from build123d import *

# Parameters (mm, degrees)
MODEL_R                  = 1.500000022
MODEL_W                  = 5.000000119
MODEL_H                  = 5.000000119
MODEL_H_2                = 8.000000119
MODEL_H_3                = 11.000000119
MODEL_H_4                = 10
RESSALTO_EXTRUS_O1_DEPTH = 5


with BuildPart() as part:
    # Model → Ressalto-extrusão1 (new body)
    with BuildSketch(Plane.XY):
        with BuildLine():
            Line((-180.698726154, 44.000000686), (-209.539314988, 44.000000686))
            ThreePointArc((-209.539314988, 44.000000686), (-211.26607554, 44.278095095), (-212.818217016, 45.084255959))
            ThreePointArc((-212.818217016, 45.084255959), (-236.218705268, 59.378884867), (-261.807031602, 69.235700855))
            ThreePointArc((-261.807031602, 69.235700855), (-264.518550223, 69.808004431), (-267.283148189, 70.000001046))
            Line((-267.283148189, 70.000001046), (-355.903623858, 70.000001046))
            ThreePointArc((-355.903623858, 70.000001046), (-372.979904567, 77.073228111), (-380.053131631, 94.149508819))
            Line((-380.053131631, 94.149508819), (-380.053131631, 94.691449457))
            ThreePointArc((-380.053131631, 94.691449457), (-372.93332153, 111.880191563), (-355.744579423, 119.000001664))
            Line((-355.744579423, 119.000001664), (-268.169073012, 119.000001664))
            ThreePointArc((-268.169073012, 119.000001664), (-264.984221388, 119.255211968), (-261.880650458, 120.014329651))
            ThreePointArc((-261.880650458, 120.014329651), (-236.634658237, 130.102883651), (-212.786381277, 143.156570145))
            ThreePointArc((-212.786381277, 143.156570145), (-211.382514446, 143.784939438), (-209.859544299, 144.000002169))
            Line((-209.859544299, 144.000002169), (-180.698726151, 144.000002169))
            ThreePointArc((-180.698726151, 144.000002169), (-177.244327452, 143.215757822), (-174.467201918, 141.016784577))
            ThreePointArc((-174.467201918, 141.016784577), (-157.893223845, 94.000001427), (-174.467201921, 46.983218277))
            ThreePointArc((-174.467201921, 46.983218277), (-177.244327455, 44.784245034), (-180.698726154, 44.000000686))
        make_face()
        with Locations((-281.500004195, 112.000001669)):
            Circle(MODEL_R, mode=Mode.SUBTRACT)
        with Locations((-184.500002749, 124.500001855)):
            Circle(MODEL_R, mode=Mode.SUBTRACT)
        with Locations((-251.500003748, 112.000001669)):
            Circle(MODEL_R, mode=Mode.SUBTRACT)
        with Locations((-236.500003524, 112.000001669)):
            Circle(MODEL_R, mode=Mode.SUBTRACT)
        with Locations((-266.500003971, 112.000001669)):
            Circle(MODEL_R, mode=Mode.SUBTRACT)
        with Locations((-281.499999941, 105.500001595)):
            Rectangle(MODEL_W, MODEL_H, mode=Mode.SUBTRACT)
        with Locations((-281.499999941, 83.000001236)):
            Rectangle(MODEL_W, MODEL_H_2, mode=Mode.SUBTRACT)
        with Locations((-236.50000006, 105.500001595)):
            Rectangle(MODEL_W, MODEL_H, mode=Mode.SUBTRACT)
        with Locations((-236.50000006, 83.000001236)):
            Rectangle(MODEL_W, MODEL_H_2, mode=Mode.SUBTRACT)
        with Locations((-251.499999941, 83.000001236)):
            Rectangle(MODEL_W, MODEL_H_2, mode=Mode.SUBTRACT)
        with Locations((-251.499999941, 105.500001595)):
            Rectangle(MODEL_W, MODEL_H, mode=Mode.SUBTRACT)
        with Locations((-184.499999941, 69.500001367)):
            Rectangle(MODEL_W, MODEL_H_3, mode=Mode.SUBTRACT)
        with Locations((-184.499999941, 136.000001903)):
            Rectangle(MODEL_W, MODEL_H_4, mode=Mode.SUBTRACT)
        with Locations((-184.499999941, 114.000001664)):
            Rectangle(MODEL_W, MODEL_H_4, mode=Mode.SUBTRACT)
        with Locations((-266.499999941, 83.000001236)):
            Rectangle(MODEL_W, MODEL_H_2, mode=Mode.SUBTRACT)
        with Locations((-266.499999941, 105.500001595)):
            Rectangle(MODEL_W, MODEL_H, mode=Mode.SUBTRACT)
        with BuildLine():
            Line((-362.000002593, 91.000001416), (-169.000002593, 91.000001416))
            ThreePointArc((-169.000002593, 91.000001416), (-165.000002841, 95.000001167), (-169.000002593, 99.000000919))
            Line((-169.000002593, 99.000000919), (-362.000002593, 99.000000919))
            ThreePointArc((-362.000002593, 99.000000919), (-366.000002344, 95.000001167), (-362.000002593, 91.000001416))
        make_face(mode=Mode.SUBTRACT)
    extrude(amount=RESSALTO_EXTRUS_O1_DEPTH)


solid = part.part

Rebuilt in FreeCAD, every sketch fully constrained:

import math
import FreeCAD as App
import Part
import Sketcher


def add_polygon(sketch, points):
    """Adds a closed chain of lines whose ends are joined by coincident constraints."""
    first, n = sketch.GeometryCount, len(points)
    for a, b in zip(points, points[1:] + points[:1]):
        sketch.addGeometry(Part.LineSegment(App.Vector(*a, 0), App.Vector(*b, 0)), False)
    for i in range(n):
        sketch.addConstraint(Sketcher.Constraint("Coincident", first + i, 2, first + (i + 1) % n, 1))

doc = App.newDocument("Part")
body = doc.addObject("PartDesign::Body", "Body")

sketch1 = body.newObject("Sketcher::SketchObject", "Sketch")
sketch1.AttachmentSupport = (doc.getObject("XY_Plane"), [""])
sketch1.MapMode = "FlatFace"
sketch1.addGeometry(Part.LineSegment(App.Vector(-209.5, 44, 0), App.Vector(-180.7, 44, 0)), False)
sketch1.addGeometry(Part.ArcOfCircle(Part.Circle(App.Vector(-180.7, 52, 0), App.Vector(0, 0, 1), 8), math.radians(-90), math.radians(-39)), False)
sketch1.addGeometry(Part.ArcOfCircle(Part.Circle(App.Vector(-232.9, 94, 0), App.Vector(0, 0, 1), 75), math.radians(-39), math.radians(39)), False)
sketch1.addGeometry(Part.ArcOfCircle(Part.Circle(App.Vector(-180.7, 136, 0), App.Vector(0, 0, 1), 8), math.radians(39), math.radians(90)), False)
sketch1.addGeometry(Part.LineSegment(App.Vector(-180.7, 144, 0), App.Vector(-209.9, 144, 0)), False)
sketch1.addGeometry(Part.ArcOfCircle(Part.Circle(App.Vector(-209.9, 138.5, 0), App.Vector(0, 0, 1), 5.5), math.radians(90), math.radians(122)), False)
sketch1.addGeometry(Part.ArcOfCircle(Part.Circle(App.Vector(-332.8, 334.1, 0), App.Vector(0, 0, 1), 225.5), math.radians(-71.67), math.radians(-57.85)), False)
sketch1.addGeometry(Part.ArcOfCircle(Part.Circle(App.Vector(-268.2, 139, 0), App.Vector(0, 0, 1), 20), math.radians(-90), math.radians(-71.67)), False)
sketch1.addGeometry(Part.LineSegment(App.Vector(-268.2, 119, 0), App.Vector(-355.7, 119, 0)), False)
sketch1.addGeometry(Part.ArcOfCircle(Part.Circle(App.Vector(-355.7, 94.7, 0), App.Vector(0, 0, 1), 24.3), math.radians(90), math.radians(180)), False)
sketch1.addGeometry(Part.LineSegment(App.Vector(-380.1, 94.7, 0), App.Vector(-380.1, 94.1, 0)), False)
sketch1.addGeometry(Part.ArcOfCircle(Part.Circle(App.Vector(-355.9, 94.1, 0), App.Vector(0, 0, 1), 24.1), math.radians(180), math.radians(270)), False)
sketch1.addGeometry(Part.LineSegment(App.Vector(-355.9, 70, 0), App.Vector(-267.3, 70, 0)), False)
sketch1.addGeometry(Part.ArcOfCircle(Part.Circle(App.Vector(-267.3, 50, 0), App.Vector(0, 0, 1), 20), math.radians(74.11), math.radians(90)), False)
sketch1.addGeometry(Part.ArcOfCircle(Part.Circle(App.Vector(-303.4, -76.9, 0), App.Vector(0, 0, 1), 152), math.radians(53), math.radians(74)), False)
sketch1.addGeometry(Part.ArcOfCircle(Part.Circle(App.Vector(-209.5, 49.5, 0), App.Vector(0, 0, 1), 5.5), math.radians(-127), math.radians(-90)), False)
add_polygon(sketch1, [(-187, 64), (-187, 75), (-182, 75), (-182, 64)])
add_polygon(sketch1, [(-239, 79), (-239, 87), (-234, 87), (-234, 79)])
add_polygon(sketch1, [(-254, 79), (-254, 87), (-249, 87), (-249, 79)])
add_polygon(sketch1, [(-269, 79), (-269, 87), (-264, 87), (-264, 79)])
add_polygon(sketch1, [(-284, 79), (-284, 87), (-279, 87), (-279, 79)])
sketch1.addGeometry(Part.ArcOfCircle(Part.Circle(App.Vector(-362, 95, 0), App.Vector(0, 0, 1), 4), math.radians(90), math.radians(270)), False)
sketch1.addGeometry(Part.LineSegment(App.Vector(-362, 99, 0), App.Vector(-169, 99, 0)), False)
sketch1.addGeometry(Part.ArcOfCircle(Part.Circle(App.Vector(-169, 95, 0), App.Vector(0, 0, 1), 4), math.radians(-90), math.radians(90)), False)
sketch1.addGeometry(Part.LineSegment(App.Vector(-169, 91, 0), App.Vector(-362, 91, 0)), False)
add_polygon(sketch1, [(-187, 109), (-187, 119), (-182, 119), (-182, 109)])
add_polygon(sketch1, [(-239, 103), (-239, 108), (-234, 108), (-234, 103)])
sketch1.addGeometry(Part.Circle(App.Vector(-236.5, 112, 0), App.Vector(0, 0, 1), 1.5), False)
add_polygon(sketch1, [(-254, 103), (-254, 108), (-249, 108), (-249, 103)])
sketch1.addGeometry(Part.Circle(App.Vector(-251.5, 112, 0), App.Vector(0, 0, 1), 1.5), False)
sketch1.addGeometry(Part.Circle(App.Vector(-184.5, 124.5, 0), App.Vector(0, 0, 1), 1.5), False)
add_polygon(sketch1, [(-187, 131), (-187, 141), (-182, 141), (-182, 131)])
add_polygon(sketch1, [(-269, 103), (-269, 108), (-264, 108), (-264, 103)])
add_polygon(sketch1, [(-284, 103), (-284, 108), (-279, 108), (-279, 103)])
sketch1.addGeometry(Part.Circle(App.Vector(-266.5, 112, 0), App.Vector(0, 0, 1), 1.5), False)
sketch1.addGeometry(Part.Circle(App.Vector(-281.5, 112, 0), App.Vector(0, 0, 1), 1.5), False)
sketch1.addConstraint(Sketcher.Constraint("Tangent", 0, 2, 1, 1))
sketch1.addConstraint(Sketcher.Constraint("Tangent", 1, 2, 2, 1))
sketch1.addConstraint(Sketcher.Constraint("Tangent", 2, 2, 3, 1))
sketch1.addConstraint(Sketcher.Constraint("Tangent", 3, 2, 4, 1))
sketch1.addConstraint(Sketcher.Constraint("Tangent", 4, 2, 5, 1))
sketch1.addConstraint(Sketcher.Constraint("Tangent", 5, 2, 6, 2))
sketch1.addConstraint(Sketcher.Constraint("Tangent", 6, 1, 7, 2))
sketch1.addConstraint(Sketcher.Constraint("Tangent", 7, 1, 8, 1))
sketch1.addConstraint(Sketcher.Constraint("Tangent", 8, 2, 9, 1))
sketch1.addConstraint(Sketcher.Constraint("Tangent", 9, 2, 10, 1))
sketch1.addConstraint(Sketcher.Constraint("Tangent", 10, 2, 11, 1))
sketch1.addConstraint(Sketcher.Constraint("Tangent", 11, 2, 12, 1))
sketch1.addConstraint(Sketcher.Constraint("Tangent", 12, 2, 13, 2))
sketch1.addConstraint(Sketcher.Constraint("Tangent", 13, 1, 14, 2))
sketch1.addConstraint(Sketcher.Constraint("Tangent", 14, 1, 15, 1))
sketch1.addConstraint(Sketcher.Constraint("Tangent", 15, 2, 0, 1))
sketch1.addConstraint(Sketcher.Constraint("Tangent", 36, 1, 37, 1))
sketch1.addConstraint(Sketcher.Constraint("Tangent", 37, 2, 38, 2))
sketch1.addConstraint(Sketcher.Constraint("Tangent", 38, 1, 39, 1))
sketch1.addConstraint(Sketcher.Constraint("Tangent", 39, 2, 36, 2))
sketch1.addConstraint(Sketcher.Constraint("Horizontal", 0))
sketch1.addConstraint(Sketcher.Constraint("Horizontal", 4))
sketch1.addConstraint(Sketcher.Constraint("Horizontal", 8))
sketch1.addConstraint(Sketcher.Constraint("Vertical", 10))
sketch1.addConstraint(Sketcher.Constraint("Horizontal", 12))
sketch1.addConstraint(Sketcher.Constraint("Vertical", 16))
sketch1.addConstraint(Sketcher.Constraint("Horizontal", 17))
sketch1.addConstraint(Sketcher.Constraint("Vertical", 18))
sketch1.addConstraint(Sketcher.Constraint("Horizontal", 19))
sketch1.addConstraint(Sketcher.Constraint("Vertical", 20))
sketch1.addConstraint(Sketcher.Constraint("Horizontal", 21))
sketch1.addConstraint(Sketcher.Constraint("Vertical", 22))
sketch1.addConstraint(Sketcher.Constraint("Horizontal", 23))
sketch1.addConstraint(Sketcher.Constraint("Vertical", 24))
sketch1.addConstraint(Sketcher.Constraint("Horizontal", 25))
sketch1.addConstraint(Sketcher.Constraint("Vertical", 26))
sketch1.addConstraint(Sketcher.Constraint("Horizontal", 27))
sketch1.addConstraint(Sketcher.Constraint("Vertical", 28))
sketch1.addConstraint(Sketcher.Constraint("Horizontal", 29))
sketch1.addConstraint(Sketcher.Constraint("Vertical", 30))
sketch1.addConstraint(Sketcher.Constraint("Horizontal", 31))
sketch1.addConstraint(Sketcher.Constraint("Vertical", 32))
sketch1.addConstraint(Sketcher.Constraint("Horizontal", 33))
sketch1.addConstraint(Sketcher.Constraint("Vertical", 34))
sketch1.addConstraint(Sketcher.Constraint("Horizontal", 35))
sketch1.addConstraint(Sketcher.Constraint("Horizontal", 37))
sketch1.addConstraint(Sketcher.Constraint("Horizontal", 39))
sketch1.addConstraint(Sketcher.Constraint("Vertical", 40))
sketch1.addConstraint(Sketcher.Constraint("Horizontal", 41))
sketch1.addConstraint(Sketcher.Constraint("Vertical", 42))
sketch1.addConstraint(Sketcher.Constraint("Horizontal", 43))
sketch1.addConstraint(Sketcher.Constraint("Vertical", 44))
sketch1.addConstraint(Sketcher.Constraint("Horizontal", 45))
sketch1.addConstraint(Sketcher.Constraint("Vertical", 46))
sketch1.addConstraint(Sketcher.Constraint("Horizontal", 47))
sketch1.addConstraint(Sketcher.Constraint("Vertical", 49))
sketch1.addConstraint(Sketcher.Constraint("Horizontal", 50))
sketch1.addConstraint(Sketcher.Constraint("Vertical", 51))
sketch1.addConstraint(Sketcher.Constraint("Horizontal", 52))
sketch1.addConstraint(Sketcher.Constraint("Vertical", 55))
sketch1.addConstraint(Sketcher.Constraint("Horizontal", 56))
sketch1.addConstraint(Sketcher.Constraint("Vertical", 57))
sketch1.addConstraint(Sketcher.Constraint("Horizontal", 58))
sketch1.addConstraint(Sketcher.Constraint("Vertical", 59))
sketch1.addConstraint(Sketcher.Constraint("Horizontal", 60))
sketch1.addConstraint(Sketcher.Constraint("Vertical", 61))
sketch1.addConstraint(Sketcher.Constraint("Horizontal", 62))
sketch1.addConstraint(Sketcher.Constraint("Vertical", 63))
sketch1.addConstraint(Sketcher.Constraint("Horizontal", 64))
sketch1.addConstraint(Sketcher.Constraint("Vertical", 65))
sketch1.addConstraint(Sketcher.Constraint("Horizontal", 66))
sketch1.addConstraint(Sketcher.Constraint("Equal", 1, 3))
sketch1.addConstraint(Sketcher.Constraint("Equal", 7, 13))
sketch1.addConstraint(Sketcher.Constraint("Equal", 5, 15))
sketch1.addConstraint(Sketcher.Constraint("Equal", 48, 53))
sketch1.addConstraint(Sketcher.Constraint("Equal", 53, 54))
sketch1.addConstraint(Sketcher.Constraint("Equal", 54, 67))
sketch1.addConstraint(Sketcher.Constraint("Equal", 67, 68))
sketch1.addConstraint(Sketcher.Constraint("Horizontal", 48, 3, 53, 3))
sketch1.addConstraint(Sketcher.Constraint("Horizontal", 53, 3, 67, 3))
sketch1.addConstraint(Sketcher.Constraint("Horizontal", 67, 3, 68, 3))
sketch1.addConstraint(Sketcher.Constraint("Horizontal", 21, 2, 24, 2))
sketch1.addConstraint(Sketcher.Constraint("Horizontal", 23, 2, 26, 2))
sketch1.addConstraint(Sketcher.Constraint("Horizontal", 25, 2, 28, 2))
sketch1.addConstraint(Sketcher.Constraint("Horizontal", 27, 2, 30, 2))
sketch1.addConstraint(Sketcher.Constraint("Horizontal", 29, 2, 32, 2))
sketch1.addConstraint(Sketcher.Constraint("Horizontal", 31, 2, 34, 2))
sketch1.addConstraint(Sketcher.Constraint("Horizontal", 8, 2, 40, 2))
sketch1.addConstraint(Sketcher.Constraint("Horizontal", 45, 2, 49, 2))
sketch1.addConstraint(Sketcher.Constraint("Horizontal", 47, 2, 51, 2))
sketch1.addConstraint(Sketcher.Constraint("Horizontal", 50, 2, 59, 2))
sketch1.addConstraint(Sketcher.Constraint("Horizontal", 52, 2, 61, 2))
sketch1.addConstraint(Sketcher.Constraint("Horizontal", 60, 2, 63, 2))
sketch1.addConstraint(Sketcher.Constraint("Horizontal", 62, 2, 65, 2))
sketch1.addConstraint(Sketcher.Constraint("Vertical", 1, 3, 3, 3))
sketch1.addConstraint(Sketcher.Constraint("Vertical", 19, 2, 40, 2))
sketch1.addConstraint(Sketcher.Constraint("Vertical", 18, 2, 41, 2))
sketch1.addConstraint(Sketcher.Constraint("Vertical", 23, 2, 44, 2))
sketch1.addConstraint(Sketcher.Constraint("Vertical", 22, 2, 45, 2))
sketch1.addConstraint(Sketcher.Constraint("Vertical", 27, 2, 49, 2))
sketch1.addConstraint(Sketcher.Constraint("Vertical", 26, 2, 50, 2))
sketch1.addConstraint(Sketcher.Constraint("Vertical", 43, 2, 55, 2))
sketch1.addConstraint(Sketcher.Constraint("Vertical", 42, 2, 56, 2))
sketch1.addConstraint(Sketcher.Constraint("Vertical", 31, 2, 59, 2))
sketch1.addConstraint(Sketcher.Constraint("Vertical", 30, 2, 60, 2))
sketch1.addConstraint(Sketcher.Constraint("Vertical", 35, 2, 63, 2))
sketch1.addConstraint(Sketcher.Constraint("Vertical", 34, 2, 64, 2))
sketch1.addConstraint(Sketcher.Constraint("Equal", 19, 21))
sketch1.addConstraint(Sketcher.Constraint("Equal", 23, 25))
sketch1.addConstraint(Sketcher.Constraint("Equal", 27, 29))
sketch1.addConstraint(Sketcher.Constraint("Equal", 31, 33))
sketch1.addConstraint(Sketcher.Constraint("Equal", 66, 44))
sketch1.addConstraint(Sketcher.Constraint("Equal", 42, 55))
sketch1.addConstraint(Sketcher.Constraint("Diameter", 48, 3.0))
sketch1.addConstraint(Sketcher.Constraint("Radius", 1, 8.0))
sketch1.addConstraint(Sketcher.Constraint("Radius", 7, 20.0))
sketch1.addConstraint(Sketcher.Constraint("Radius", 36, 4.0))
sketch1.addConstraint(Sketcher.Constraint("Radius", 5, 5.5))
sketch1.addConstraint(Sketcher.Constraint("DistanceX", 17, 1, 17, 2, 5.0))
sketch1.addConstraint(Sketcher.Constraint("DistanceX", 37, 1, 37, 2, 193.0))
sketch1.addConstraint(Sketcher.Constraint("DistanceY", 16, 1, 16, 2, 11.0))
sketch1.addConstraint(Sketcher.Constraint("DistanceY", 20, 1, 20, 2, 8.0))
sketch1.addConstraint(Sketcher.Constraint("DistanceY", 40, 1, 40, 2, 10.0))
sketch1.addConstraint(Sketcher.Constraint("DistanceY", -1, 1, 1, 3, 52.000001))
sketch1.addConstraint(Sketcher.Constraint("DistanceY", -1, 1, 2, 3, 94.000001))
sketch1.addConstraint(Sketcher.Constraint("DistanceY", -1, 1, 7, 3, 139.000002))
sketch1.addConstraint(Sketcher.Constraint("DistanceY", -1, 1, 13, 3, 50.000001))
sketch1.addConstraint(Sketcher.Constraint("DistanceY", -1, 1, 36, 3, 95.000001))
sketch1.addConstraint(Sketcher.Constraint("DistanceY", -1, 1, 48, 3, 112.000002))
sketch1.addConstraint(Sketcher.Constraint("DistanceX", 16, 2, -1, 1, 187.0))
sketch1.addConstraint(Sketcher.Constraint("DistanceY", -1, 1, 16, 2, 75.000001))
sketch1.addConstraint(Sketcher.Constraint("DistanceX", 20, 2, -1, 1, 239.0))
sketch1.addConstraint(Sketcher.Constraint("DistanceY", -1, 1, 20, 2, 87.000001))
sketch1.addConstraint(Sketcher.Constraint("DistanceX", 24, 2, -1, 1, 254.0))
sketch1.addConstraint(Sketcher.Constraint("DistanceX", 28, 2, -1, 1, 269.0))
sketch1.addConstraint(Sketcher.Constraint("DistanceX", 32, 2, -1, 1, 284.0))
sketch1.addConstraint(Sketcher.Constraint("DistanceY", -1, 1, 44, 2, 108.000002))
sketch1.addConstraint(Sketcher.Constraint("DistanceY", -1, 1, 55, 2, 141.000002))
sketch1.addConstraint(Sketcher.Constraint("DistanceY", -1, 1, 54, 3, 124.500002))
sketch1.addConstraint(Sketcher.Constraint("Radius", 2, 74.9752))
sketch1.addConstraint(Sketcher.Constraint("Radius", 6, 225.481249))
sketch1.addConstraint(Sketcher.Constraint("Radius", 9, 24.308552))
sketch1.addConstraint(Sketcher.Constraint("Radius", 11, 24.149508))
sketch1.addConstraint(Sketcher.Constraint("Radius", 14, 151.970132))
sketch1.addConstraint(Sketcher.Constraint("DistanceX", 0, 1, 0, 2, 28.840589))
sketch1.addConstraint(Sketcher.Constraint("DistanceX", 4, 2, 4, 1, 29.160818))
sketch1.addConstraint(Sketcher.Constraint("DistanceX", 1, 2, -1, 1, 174.467202))
sketch1.addConstraint(Sketcher.Constraint("DistanceY", -1, 1, 13, 1, 69.235701))
sketch1.addConstraint(Sketcher.Constraint("DistanceX", 8, 2, 8, 1, 87.575506))
sketch1.addConstraint(Sketcher.Constraint("DistanceX", 12, 1, 12, 2, 88.620476))
sketch1.addConstraint(Sketcher.Constraint("DistanceX", 36, 3, -1, 1, 362.000003))
sketch1.addConstraint(Sketcher.Constraint("DistanceX", 48, 3, -1, 1, 236.500004))
sketch1.addConstraint(Sketcher.Constraint("DistanceX", 53, 3, -1, 1, 251.500004))
sketch1.addConstraint(Sketcher.Constraint("DistanceX", 54, 3, -1, 1, 184.500003))
sketch1.addConstraint(Sketcher.Constraint("DistanceX", 67, 3, -1, 1, 266.500004))
sketch1.addConstraint(Sketcher.Constraint("DistanceX", 68, 3, -1, 1, 281.500004))
pad1 = body.newObject("PartDesign::Pad", "Pad")
pad1.Profile = sketch1
pad1.Length = 5

doc.recompute()
